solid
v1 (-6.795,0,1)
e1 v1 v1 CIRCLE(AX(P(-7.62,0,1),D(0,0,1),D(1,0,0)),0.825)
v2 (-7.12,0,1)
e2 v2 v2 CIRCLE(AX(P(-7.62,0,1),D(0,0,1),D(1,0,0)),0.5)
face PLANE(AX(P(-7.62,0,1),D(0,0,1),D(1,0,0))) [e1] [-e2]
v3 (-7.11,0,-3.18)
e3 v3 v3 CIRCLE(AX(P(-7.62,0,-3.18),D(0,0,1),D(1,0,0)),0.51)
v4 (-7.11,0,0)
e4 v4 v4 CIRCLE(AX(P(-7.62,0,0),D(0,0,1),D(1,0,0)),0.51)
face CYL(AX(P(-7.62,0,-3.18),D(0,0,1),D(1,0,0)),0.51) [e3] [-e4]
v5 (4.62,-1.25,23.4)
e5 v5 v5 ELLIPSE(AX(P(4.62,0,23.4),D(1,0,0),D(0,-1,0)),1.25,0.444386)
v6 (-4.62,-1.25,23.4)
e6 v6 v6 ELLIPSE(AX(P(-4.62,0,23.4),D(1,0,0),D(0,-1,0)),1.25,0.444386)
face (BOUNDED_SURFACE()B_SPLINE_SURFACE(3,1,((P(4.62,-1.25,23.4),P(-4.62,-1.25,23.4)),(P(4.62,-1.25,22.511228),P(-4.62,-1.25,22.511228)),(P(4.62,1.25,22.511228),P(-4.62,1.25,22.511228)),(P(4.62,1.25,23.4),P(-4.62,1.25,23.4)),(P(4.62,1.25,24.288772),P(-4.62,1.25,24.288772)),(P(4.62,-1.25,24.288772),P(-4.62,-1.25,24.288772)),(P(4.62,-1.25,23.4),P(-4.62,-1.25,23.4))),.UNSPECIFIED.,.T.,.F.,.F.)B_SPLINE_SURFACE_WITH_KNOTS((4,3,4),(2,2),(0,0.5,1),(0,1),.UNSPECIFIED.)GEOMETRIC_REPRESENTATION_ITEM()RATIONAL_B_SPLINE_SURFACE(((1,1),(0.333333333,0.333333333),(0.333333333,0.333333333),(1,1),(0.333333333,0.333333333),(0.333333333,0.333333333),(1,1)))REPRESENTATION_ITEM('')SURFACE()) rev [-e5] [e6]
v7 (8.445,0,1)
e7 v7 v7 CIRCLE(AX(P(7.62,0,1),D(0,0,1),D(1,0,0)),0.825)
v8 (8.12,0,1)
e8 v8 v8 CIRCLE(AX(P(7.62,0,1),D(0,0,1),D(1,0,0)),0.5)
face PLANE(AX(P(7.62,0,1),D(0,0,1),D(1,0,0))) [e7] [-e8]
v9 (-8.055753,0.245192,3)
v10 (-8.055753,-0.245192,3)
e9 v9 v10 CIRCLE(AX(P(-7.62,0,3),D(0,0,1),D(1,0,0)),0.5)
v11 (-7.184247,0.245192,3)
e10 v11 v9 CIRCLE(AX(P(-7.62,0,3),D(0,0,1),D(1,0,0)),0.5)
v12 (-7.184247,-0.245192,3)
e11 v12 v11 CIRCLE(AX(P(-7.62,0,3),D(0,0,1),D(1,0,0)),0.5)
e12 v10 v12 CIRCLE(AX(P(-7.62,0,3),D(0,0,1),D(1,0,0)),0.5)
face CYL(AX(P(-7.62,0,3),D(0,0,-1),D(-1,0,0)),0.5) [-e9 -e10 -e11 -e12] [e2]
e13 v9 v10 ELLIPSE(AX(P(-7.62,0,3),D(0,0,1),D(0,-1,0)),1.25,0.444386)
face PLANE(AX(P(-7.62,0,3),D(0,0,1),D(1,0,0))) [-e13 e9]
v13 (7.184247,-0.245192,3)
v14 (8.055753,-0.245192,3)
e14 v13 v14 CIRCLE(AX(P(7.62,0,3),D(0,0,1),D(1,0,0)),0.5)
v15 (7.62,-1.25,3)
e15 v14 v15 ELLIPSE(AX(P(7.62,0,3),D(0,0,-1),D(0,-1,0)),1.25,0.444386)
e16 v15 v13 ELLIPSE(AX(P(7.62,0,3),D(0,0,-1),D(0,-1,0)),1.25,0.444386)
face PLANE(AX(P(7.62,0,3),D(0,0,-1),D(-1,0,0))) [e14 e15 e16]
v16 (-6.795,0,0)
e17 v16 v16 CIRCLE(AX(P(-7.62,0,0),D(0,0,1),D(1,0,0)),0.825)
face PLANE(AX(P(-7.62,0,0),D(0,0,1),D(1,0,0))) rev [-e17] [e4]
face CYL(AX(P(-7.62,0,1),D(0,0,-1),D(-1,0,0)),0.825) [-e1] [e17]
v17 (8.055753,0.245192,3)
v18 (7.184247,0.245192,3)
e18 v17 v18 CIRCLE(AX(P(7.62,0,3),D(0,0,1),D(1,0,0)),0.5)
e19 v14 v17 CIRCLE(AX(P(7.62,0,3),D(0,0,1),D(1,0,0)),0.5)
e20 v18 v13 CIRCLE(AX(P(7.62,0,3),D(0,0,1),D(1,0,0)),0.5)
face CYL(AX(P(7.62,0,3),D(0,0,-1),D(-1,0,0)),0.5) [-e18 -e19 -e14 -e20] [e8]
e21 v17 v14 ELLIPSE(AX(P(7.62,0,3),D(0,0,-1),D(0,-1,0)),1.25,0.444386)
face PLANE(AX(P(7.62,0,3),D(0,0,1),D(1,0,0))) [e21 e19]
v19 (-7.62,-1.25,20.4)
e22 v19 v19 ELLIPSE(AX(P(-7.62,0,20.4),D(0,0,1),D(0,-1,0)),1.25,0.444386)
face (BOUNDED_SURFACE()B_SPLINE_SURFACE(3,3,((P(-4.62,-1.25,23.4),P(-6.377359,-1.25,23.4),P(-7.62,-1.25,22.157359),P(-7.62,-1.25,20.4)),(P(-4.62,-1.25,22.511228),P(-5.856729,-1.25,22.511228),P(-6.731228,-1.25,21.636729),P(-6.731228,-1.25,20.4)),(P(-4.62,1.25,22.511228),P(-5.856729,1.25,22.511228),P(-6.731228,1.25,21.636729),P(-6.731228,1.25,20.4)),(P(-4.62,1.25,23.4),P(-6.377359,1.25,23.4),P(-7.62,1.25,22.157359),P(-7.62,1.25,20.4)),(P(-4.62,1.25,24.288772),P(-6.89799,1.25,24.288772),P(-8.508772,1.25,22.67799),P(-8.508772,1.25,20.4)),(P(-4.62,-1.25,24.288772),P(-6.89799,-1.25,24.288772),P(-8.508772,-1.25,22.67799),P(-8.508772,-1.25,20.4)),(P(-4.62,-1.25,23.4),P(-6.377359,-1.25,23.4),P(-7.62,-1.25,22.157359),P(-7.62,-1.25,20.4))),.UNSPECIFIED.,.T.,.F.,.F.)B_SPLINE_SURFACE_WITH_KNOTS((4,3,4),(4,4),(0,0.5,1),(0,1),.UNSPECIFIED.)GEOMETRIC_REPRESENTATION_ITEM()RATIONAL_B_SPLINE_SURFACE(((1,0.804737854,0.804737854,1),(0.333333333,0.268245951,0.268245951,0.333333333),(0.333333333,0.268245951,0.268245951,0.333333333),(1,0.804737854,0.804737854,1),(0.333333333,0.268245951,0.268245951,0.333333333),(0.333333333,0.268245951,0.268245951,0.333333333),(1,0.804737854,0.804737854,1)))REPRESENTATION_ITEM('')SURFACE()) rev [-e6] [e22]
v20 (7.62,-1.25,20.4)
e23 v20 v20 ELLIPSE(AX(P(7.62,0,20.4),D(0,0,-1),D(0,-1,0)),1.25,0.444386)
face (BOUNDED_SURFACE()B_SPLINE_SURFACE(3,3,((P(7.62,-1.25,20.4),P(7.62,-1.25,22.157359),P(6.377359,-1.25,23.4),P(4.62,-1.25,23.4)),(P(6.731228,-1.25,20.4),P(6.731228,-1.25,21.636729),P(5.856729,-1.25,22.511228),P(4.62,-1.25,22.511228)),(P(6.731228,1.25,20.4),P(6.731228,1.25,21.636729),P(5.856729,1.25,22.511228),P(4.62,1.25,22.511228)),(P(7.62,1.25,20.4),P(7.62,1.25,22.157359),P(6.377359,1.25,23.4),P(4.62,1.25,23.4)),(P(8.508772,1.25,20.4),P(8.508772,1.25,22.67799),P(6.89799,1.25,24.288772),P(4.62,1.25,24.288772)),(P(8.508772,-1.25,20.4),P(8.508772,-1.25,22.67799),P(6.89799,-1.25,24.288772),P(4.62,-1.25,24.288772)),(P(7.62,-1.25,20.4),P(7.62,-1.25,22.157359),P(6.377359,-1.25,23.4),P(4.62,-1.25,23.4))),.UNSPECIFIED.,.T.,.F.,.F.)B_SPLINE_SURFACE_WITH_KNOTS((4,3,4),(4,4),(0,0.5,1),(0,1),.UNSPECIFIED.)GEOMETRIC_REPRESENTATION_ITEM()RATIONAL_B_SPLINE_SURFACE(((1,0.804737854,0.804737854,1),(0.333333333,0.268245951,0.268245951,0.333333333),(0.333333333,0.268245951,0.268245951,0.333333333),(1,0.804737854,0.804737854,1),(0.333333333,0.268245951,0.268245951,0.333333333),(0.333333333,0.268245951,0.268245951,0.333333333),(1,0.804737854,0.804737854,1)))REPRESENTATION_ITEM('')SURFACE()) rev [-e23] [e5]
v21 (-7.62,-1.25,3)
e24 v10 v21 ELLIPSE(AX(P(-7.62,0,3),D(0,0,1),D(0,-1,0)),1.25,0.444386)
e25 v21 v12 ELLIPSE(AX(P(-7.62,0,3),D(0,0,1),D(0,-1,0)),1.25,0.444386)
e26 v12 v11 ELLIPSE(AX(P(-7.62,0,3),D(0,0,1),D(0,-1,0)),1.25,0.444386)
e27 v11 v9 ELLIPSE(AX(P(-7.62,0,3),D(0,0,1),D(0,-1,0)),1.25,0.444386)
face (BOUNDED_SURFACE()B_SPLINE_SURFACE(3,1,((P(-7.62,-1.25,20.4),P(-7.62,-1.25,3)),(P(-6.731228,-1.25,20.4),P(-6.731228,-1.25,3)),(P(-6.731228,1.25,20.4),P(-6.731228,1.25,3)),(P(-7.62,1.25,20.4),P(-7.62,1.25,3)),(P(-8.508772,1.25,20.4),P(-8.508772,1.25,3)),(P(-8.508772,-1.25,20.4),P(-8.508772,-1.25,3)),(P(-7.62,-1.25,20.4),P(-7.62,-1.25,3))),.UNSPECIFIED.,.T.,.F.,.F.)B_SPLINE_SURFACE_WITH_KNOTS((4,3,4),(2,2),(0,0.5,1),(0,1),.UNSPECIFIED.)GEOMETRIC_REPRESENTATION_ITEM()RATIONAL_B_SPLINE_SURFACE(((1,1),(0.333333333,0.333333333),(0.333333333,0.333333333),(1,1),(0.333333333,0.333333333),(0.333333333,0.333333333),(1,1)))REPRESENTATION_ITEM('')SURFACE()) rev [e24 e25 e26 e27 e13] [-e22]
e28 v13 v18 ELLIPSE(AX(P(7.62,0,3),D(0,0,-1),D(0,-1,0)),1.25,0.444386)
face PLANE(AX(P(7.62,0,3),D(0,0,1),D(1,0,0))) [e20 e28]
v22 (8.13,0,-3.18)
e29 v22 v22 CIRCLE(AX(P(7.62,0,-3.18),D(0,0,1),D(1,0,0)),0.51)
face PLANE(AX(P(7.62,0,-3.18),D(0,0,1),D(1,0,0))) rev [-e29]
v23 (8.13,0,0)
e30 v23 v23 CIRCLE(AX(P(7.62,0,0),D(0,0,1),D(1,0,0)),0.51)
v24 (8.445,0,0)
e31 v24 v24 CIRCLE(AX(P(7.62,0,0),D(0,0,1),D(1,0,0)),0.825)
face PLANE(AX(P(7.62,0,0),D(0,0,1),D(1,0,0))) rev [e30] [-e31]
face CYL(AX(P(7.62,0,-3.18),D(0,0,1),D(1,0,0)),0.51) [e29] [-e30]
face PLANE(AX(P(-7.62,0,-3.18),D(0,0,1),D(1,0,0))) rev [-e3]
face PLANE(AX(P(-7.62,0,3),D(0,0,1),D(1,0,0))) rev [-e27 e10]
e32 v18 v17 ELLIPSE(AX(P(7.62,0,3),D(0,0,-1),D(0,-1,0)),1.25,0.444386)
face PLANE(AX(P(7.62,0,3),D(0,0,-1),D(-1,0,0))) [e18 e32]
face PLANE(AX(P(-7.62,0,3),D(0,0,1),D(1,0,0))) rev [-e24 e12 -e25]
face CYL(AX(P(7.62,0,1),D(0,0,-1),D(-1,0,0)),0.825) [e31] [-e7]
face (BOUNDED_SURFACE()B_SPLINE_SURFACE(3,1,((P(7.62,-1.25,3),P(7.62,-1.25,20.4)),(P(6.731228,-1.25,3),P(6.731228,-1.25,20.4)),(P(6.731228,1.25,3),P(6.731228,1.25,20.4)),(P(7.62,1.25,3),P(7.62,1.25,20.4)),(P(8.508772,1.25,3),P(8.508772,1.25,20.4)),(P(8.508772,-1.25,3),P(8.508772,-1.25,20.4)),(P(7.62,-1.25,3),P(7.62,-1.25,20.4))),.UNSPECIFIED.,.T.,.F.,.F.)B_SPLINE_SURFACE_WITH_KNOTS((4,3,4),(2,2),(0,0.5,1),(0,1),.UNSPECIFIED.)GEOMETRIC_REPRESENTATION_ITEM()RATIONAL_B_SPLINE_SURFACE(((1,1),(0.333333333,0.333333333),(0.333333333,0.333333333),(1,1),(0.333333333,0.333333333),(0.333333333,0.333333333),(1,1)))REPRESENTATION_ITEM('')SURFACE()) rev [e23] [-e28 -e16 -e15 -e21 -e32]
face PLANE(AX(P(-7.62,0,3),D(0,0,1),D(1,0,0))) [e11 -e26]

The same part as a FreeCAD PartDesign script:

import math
import FreeCAD as App
import Part
import Sketcher

V = App.Vector
Q = App.Units.Quantity

doc = App.newDocument("Part")
params = doc.addObject("Spreadsheet::Sheet", "Params")
for row, (alias, value) in enumerate([
    ("sketch1_diameter", "1.02 mm"),
    ("pad1_length", "3.18 mm"),
    ("sketch2_diameter", "1.02 mm"),
    ("pad2_length", "3.18 mm"),
    ("sketch3_diameter", "1.65 mm"),
    ("pad3_length", "1 mm"),
    ("sketch4_diameter", "1 mm"),
    ("pad4_length", "2 mm"),
    ("sketch6_radius", "3 mm"),
    ("sketch6_height", "17.4 mm"),
    ("sketch6_width", "9.24 mm"),
], start=1):
    params.set(f"A{row}", alias)
    params.set(f"B{row}", "=" + value)
    params.setAlias(f"B{row}", alias)

body = doc.addObject("PartDesign::Body", "Body")

# Sketch on XY plane
sketch1 = body.newObject("Sketcher::SketchObject", "Sketch")
sketch1.AttachmentSupport = (doc.getObject("XY_Plane"), [""])
sketch1.MapMode = "FlatFace"
sketch1.addGeometry(Part.Circle(V(-7.6, 0, 0), V(0, 0, 1), 0.5), False)
sketch1.addConstraint([
    Sketcher.Constraint("PointOnObject", 0, 3, -1),
    Sketcher.Constraint("Diameter", 0, Q("1.02 mm")),
    Sketcher.Constraint("DistanceX", 0, 3, -1, 1, Q("7.62 mm")),
])
sketch1.setExpression("Constraints[1]", "Params.sketch1_diameter")
pad1 = body.newObject("PartDesign::Pad", "Pad")
pad1.Profile = sketch1
pad1.setExpression("Length", "Params.pad1_length")
pad1.Reversed = True
body2 = doc.addObject("PartDesign::Body", "Body001")

# Sketch on XY plane
sketch2 = body2.newObject("Sketcher::SketchObject", "Sketch001")
sketch2.AttachmentSupport = (doc.getObject("XY_Plane001"), [""])
sketch2.MapMode = "FlatFace"
sketch2.addGeometry(Part.Circle(V(7.6, 0, 0), V(0, 0, 1), 0.5), False)
sketch2.addConstraint([
    Sketcher.Constraint("PointOnObject", 0, 3, -1),
    Sketcher.Constraint("Diameter", 0, Q("1.02 mm")),
    Sketcher.Constraint("DistanceX", -1, 1, 0, 3, Q("7.62 mm")),
])
sketch2.setExpression("Constraints[1]", "Params.sketch2_diameter")
pad2 = body2.newObject("PartDesign::Pad", "Pad001")
pad2.Profile = sketch2
pad2.setExpression("Length", "Params.pad2_length")
pad2.Reversed = True
body.AllowCompound = True
doc.recompute()

boolean = body.newObject("PartDesign::Boolean", "Boolean")
boolean.Type = "Fuse"
boolean.addObjects([body2])

# Sketch on XY plane
sketch3 = body.newObject("Sketcher::SketchObject", "Sketch002")
sketch3.AttachmentSupport = (doc.getObject("XY_Plane"), [""])
sketch3.MapMode = "FlatFace"
sketch3.addGeometry([
    Part.Circle(V(-7.6, 0, 0), V(0, 0, 1), 0.8),
    Part.Circle(V(7.6, 0, 0), V(0, 0, 1), 0.8),
], False)
sketch3.addConstraint([
    Sketcher.Constraint("Equal", 0, 1),
    Sketcher.Constraint("Symmetric", 0, 3, 1, 3, -1, 1),
    Sketcher.Constraint("PointOnObject", 0, 3, -1),
    Sketcher.Constraint("Diameter", 0, Q("1.65 mm")),
    Sketcher.Constraint("DistanceX", 0, 3, -1, 1, Q("7.62 mm")),
])
sketch3.setExpression("Constraints[3]", "Params.sketch3_diameter")
pad3 = body.newObject("PartDesign::Pad", "Pad002")
pad3.Profile = sketch3
pad3.setExpression("Length", "Params.pad3_length")

# Sketch on XY plane
sketch4 = body.newObject("Sketcher::SketchObject", "Sketch003")
sketch4.AttachmentSupport = (doc.getObject("XY_Plane"), [""])
sketch4.MapMode = "FlatFace"
sketch4.AttachmentOffset = App.Placement(V(0, 0, 1), App.Rotation())
sketch4.addGeometry([
    Part.Circle(V(-7.6, 0, 0), V(0, 0, 1), 0.5),
    Part.Circle(V(7.6, 0, 0), V(0, 0, 1), 0.5),
], False)
sketch4.addConstraint([
    Sketcher.Constraint("Equal", 0, 1),
    Sketcher.Constraint("Symmetric", 0, 3, 1, 3, -1, 1),
    Sketcher.Constraint("PointOnObject", 0, 3, -1),
    Sketcher.Constraint("Diameter", 0, Q("1 mm")),
    Sketcher.Constraint("DistanceX", 0, 3, -1, 1, Q("7.62 mm")),
])
sketch4.setExpression("Constraints[3]", "Params.sketch4_diameter")
pad4 = body.newObject("PartDesign::Pad", "Pad003")
pad4.Profile = sketch4
pad4.setExpression("Length", "Params.pad4_length")

# Sketch on XY plane
sketch5 = body.newObject("Sketcher::SketchObject", "Sketch004")
sketch5.AttachmentSupport = (doc.getObject("XY_Plane"), [""])
sketch5.MapMode = "FlatFace"
sketch5.AttachmentOffset = App.Placement(V(0, 0, 3), App.Rotation())
sketch5.addGeometry(Part.Ellipse(V(-7.62, -1.25, 0), V(-7.175614, 0, 0), V(-7.62, 0, 0)), False)
sketch5.addConstraint(Sketcher.Constraint("Block", 0))

# Sketch on XZ plane
sketch6 = body.newObject("Sketcher::SketchObject", "Sketch005")
sketch6.AttachmentSupport = (doc.getObject("XZ_Plane"), [""])
sketch6.MapMode = "FlatFace"
sketch6.addGeometry([
    Part.LineSegment(V(-7.6, 3, 0), V(-7.6, 20.4, 0)),  # 0
    Part.ArcOfCircle(Part.Circle(V(-4.6, 20.4, 0), V(0, 0, 1), 3), math.radians(90), math.radians(180)),  # 1
    Part.LineSegment(V(-4.6, 23.4, 0), V(4.6, 23.4, 0)),  # 2
    Part.ArcOfCircle(Part.Circle(V(4.6, 20.4, 0), V(0, 0, 1), 3), math.radians(0), math.radians(90)),  # 3
    Part.LineSegment(V(7.6, 20.4, 0), V(7.6, 3, 0)),  # 4
], False)
sketch6.addConstraint([
    Sketcher.Constraint("Tangent", 0, 2, 1, 2),
    Sketcher.Constraint("Tangent", 1, 1, 2, 1),
    Sketcher.Constraint("Tangent", 2, 2, 3, 2),
    Sketcher.Constraint("Tangent", 3, 1, 4, 1),
    Sketcher.Constraint("Vertical", 0),
    Sketcher.Constraint("Horizontal", 2),
    Sketcher.Constraint("Vertical", 4),
    Sketcher.Constraint("Equal", 1, 3),
    Sketcher.Constraint("Symmetric", 0, 1, 4, 2, -2),
    Sketcher.Constraint("Radius", 1, Q("3 mm")),
    Sketcher.Constraint("DistanceY", 0, 1, 0, 2, Q("17.4 mm")),
    Sketcher.Constraint("DistanceY", -1, 1, 0, 1, Q("3 mm")),
    Sketcher.Constraint("DistanceX", 2, 1, 2, 2, Q("9.24 mm")),
])
sketch6.setExpression("Constraints[9]", "Params.sketch6_radius")
sketch6.setExpression("Constraints[10]", "Params.sketch6_height")
sketch6.setExpression("Constraints[12]", "Params.sketch6_width")
doc.recompute()

additivepipe = body.newObject("PartDesign::AdditivePipe", "AdditivePipe")
additivepipe.Profile = sketch5
additivepipe.Spine = (sketch6, ["Edge1", "Edge2", "Edge3", "Edge4", "Edge5"])

doc.recompute()
